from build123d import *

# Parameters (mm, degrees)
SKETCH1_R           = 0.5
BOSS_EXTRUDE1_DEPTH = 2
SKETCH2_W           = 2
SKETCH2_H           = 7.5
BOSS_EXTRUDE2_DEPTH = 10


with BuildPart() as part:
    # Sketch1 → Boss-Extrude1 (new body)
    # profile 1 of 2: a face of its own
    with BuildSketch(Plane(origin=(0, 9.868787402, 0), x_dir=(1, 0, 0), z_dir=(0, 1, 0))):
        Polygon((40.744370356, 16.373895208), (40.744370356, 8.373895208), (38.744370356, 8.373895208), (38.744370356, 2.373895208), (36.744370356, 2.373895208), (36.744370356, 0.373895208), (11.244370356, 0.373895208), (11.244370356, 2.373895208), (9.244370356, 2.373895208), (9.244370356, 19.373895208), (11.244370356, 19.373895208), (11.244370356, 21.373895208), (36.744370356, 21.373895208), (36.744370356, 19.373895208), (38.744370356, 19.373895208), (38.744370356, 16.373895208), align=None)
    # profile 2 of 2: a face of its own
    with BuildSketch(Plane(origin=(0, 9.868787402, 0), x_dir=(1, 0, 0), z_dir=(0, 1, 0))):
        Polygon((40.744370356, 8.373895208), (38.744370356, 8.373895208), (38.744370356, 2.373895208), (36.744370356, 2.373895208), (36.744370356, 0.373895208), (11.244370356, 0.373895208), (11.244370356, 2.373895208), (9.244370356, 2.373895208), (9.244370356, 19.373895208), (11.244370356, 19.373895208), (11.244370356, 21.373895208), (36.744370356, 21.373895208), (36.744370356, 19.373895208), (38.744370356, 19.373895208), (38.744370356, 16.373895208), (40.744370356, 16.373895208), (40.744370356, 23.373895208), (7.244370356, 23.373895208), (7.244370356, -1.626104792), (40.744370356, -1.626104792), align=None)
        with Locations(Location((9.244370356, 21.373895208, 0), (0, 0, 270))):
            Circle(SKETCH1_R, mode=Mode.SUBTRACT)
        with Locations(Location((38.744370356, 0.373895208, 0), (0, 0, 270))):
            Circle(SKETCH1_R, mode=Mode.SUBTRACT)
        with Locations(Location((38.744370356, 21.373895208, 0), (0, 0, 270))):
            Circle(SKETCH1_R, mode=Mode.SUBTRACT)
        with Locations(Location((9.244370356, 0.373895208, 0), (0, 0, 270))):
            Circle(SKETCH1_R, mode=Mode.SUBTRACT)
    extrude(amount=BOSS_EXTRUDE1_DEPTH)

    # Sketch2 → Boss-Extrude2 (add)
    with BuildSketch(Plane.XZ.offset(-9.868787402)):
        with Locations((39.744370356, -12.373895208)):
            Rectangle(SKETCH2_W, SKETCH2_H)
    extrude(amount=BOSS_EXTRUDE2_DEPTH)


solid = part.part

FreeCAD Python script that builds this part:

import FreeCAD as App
import Part
import Sketcher

doc = App.newDocument("Part")
body = doc.addObject("PartDesign::Body", "Body")

# Sketch on XZ plane
sketch1 = doc.addObject("Sketcher::SketchObject", "Sketch")
body.addObject(sketch1)
sketch1.AttachmentSupport = (doc.XZ_Plane, [""])
sketch1.MapMode = "FlatFace"
sketch1.AttachmentOffset = App.Placement(App.Vector(0, 0, -9.868787), App.Rotation())
sketch1.addGeometry([
    Part.LineSegment(App.Vector(40.74437, 1.626105, 0), App.Vector(40.74437, -23.373895, 0)),  # 0
    Part.LineSegment(App.Vector(40.74437, -23.373895, 0), App.Vector(7.24437, -23.373895, 0)),  # 1
    Part.LineSegment(App.Vector(7.24437, -23.373895, 0), App.Vector(7.24437, 1.626105, 0)),  # 2
    Part.LineSegment(App.Vector(7.24437, 1.626105, 0), App.Vector(40.74437, 1.626105, 0)),  # 3
    Part.Circle(App.Vector(38.74437, -21.373895, 0), App.Vector(0, 0, 1), 0.5),  # 4
    Part.Circle(App.Vector(9.24437, -21.373895, 0), App.Vector(0, 0, 1), 0.5),  # 5
    Part.Circle(App.Vector(38.74437, -0.373895, 0), App.Vector(0, 0, 1), 0.5),  # 6
    Part.Circle(App.Vector(9.24437, -0.373895, 0), App.Vector(0, 0, 1), 0.5),  # 7
], False)
sketch1.addConstraint([
    Sketcher.Constraint("Coincident", 0, 2, 1, 1),
    Sketcher.Constraint("Coincident", 1, 2, 2, 1),
    Sketcher.Constraint("Coincident", 2, 2, 3, 1),
    Sketcher.Constraint("Coincident", 3, 2, 0, 1),
    Sketcher.Constraint("Vertical", 0),
    Sketcher.Constraint("Horizontal", 1),
    Sketcher.Constraint("Vertical", 2),
    Sketcher.Constraint("Horizontal", 3),
    Sketcher.Constraint("Equal", 4, 5),
    Sketcher.Constraint("Equal", 5, 6),
    Sketcher.Constraint("Equal", 6, 7),
    Sketcher.Constraint("Horizontal", 4, 3, 5, 3),
    Sketcher.Constraint("Horizontal", 6, 3, 7, 3),
    Sketcher.Constraint("Vertical", 4, 3, 6, 3),
    Sketcher.Constraint("Vertical", 5, 3, 7, 3),
    Sketcher.Constraint("Diameter", 4, 1.0),
    Sketcher.Constraint("DistanceY", 0, 2, 0, 1, 25.0),
    Sketcher.Constraint("DistanceX", 1, 2, 1, 1, 33.5),
    Sketcher.Constraint("DistanceY", 4, 3, 6, 3, 21.0),
    Sketcher.Constraint("DistanceX", 4, 3, 0, 2, 2.0),
    Sketcher.Constraint("DistanceY", 0, 2, 4, 3, 2.0),
    Sketcher.Constraint("DistanceX", 1, 2, 5, 3, 2.0),
    Sketcher.Constraint("DistanceX", -1, 1, 4, 3, 38.74437),
    Sketcher.Constraint("DistanceY", 4, 3, -1, 1, 21.373895),
])
pad1 = doc.addObject("PartDesign::Pad", "Pad")
body.addObject(pad1)
pad1.Profile = sketch1
pad1.Length = 2
pad1.Reversed = True

# Sketch on XZ plane
sketch2 = doc.addObject("Sketcher::SketchObject", "Sketch001")
body.addObject(sketch2)
sketch2.AttachmentSupport = (doc.XZ_Plane, [""])
sketch2.MapMode = "FlatFace"
sketch2.AttachmentOffset = App.Placement(App.Vector(0, 0, -9.868787), App.Rotation())
sketch2.addGeometry([
    Part.LineSegment(App.Vector(38.74437, -8.623895, 0), App.Vector(38.74437, -16.123895, 0)),
    Part.LineSegment(App.Vector(38.74437, -16.123895, 0), App.Vector(40.74437, -16.123895, 0)),
    Part.LineSegment(App.Vector(40.74437, -16.123895, 0), App.Vector(40.74437, -8.623895, 0)),
    Part.LineSegment(App.Vector(40.74437, -8.623895, 0), App.Vector(38.74437, -8.623895, 0)),
], False)
sketch2.addConstraint([
    Sketcher.Constraint("Coincident", 0, 2, 1, 1),
    Sketcher.Constraint("Coincident", 1, 2, 2, 1),
    Sketcher.Constraint("Coincident", 2, 2, 3, 1),
    Sketcher.Constraint("Coincident", 3, 2, 0, 1),
    Sketcher.Constraint("Vertical", 0),
    Sketcher.Constraint("Horizontal", 1),
    Sketcher.Constraint("Vertical", 2),
    Sketcher.Constraint("Horizontal", 3),
    Sketcher.Constraint("DistanceX", 1, 1, 1, 2, 2.0),
    Sketcher.Constraint("DistanceY", 0, 2, 0, 1, 7.5),
    Sketcher.Constraint("DistanceX", -1, 1, 0, 2, 38.74437),
    Sketcher.Constraint("DistanceY", 0, 2, -1, 1, 16.123895),
])
pad2 = doc.addObject("PartDesign::Pad", "Pad001")
body.addObject(pad2)
pad2.Profile = sketch2
pad2.Length = 10

doc.recompute()
